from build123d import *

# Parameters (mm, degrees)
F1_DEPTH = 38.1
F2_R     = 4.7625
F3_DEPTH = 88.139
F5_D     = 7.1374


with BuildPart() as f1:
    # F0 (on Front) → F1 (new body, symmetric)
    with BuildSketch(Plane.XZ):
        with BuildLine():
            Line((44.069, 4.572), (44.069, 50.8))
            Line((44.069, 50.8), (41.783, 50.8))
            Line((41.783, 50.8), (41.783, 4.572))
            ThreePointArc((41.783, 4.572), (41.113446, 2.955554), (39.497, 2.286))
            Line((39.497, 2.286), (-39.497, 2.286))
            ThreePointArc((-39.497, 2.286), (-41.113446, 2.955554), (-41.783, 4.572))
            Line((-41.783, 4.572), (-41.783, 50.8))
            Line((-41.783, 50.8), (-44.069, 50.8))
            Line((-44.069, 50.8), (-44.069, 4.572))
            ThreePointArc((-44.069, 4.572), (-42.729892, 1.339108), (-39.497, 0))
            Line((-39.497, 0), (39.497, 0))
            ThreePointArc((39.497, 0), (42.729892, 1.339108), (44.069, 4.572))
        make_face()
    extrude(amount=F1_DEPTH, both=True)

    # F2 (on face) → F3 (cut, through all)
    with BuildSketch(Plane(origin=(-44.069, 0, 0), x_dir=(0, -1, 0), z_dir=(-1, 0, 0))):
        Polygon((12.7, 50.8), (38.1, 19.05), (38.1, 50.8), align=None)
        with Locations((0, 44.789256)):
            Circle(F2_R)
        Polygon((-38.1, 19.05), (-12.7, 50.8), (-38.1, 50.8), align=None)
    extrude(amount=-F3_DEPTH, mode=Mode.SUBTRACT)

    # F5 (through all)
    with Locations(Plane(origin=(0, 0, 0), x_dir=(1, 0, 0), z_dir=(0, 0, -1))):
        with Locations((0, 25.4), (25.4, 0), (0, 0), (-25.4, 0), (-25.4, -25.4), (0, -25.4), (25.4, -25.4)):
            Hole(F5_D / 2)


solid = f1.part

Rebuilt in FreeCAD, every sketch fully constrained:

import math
import FreeCAD as App
import Part
import Sketcher
from FreeCAD import Vector
Q = App.Units.Quantity

doc = App.newDocument("Part")
params = doc.addObject("Spreadsheet::Sheet", "Params")
for row, (alias, value) in enumerate([
    ("sketch1_radius", "0.09 in"),
    ("sketch1_radius2", "0.18 in"),
    ("sketch1_width", "3.11 in"),
    ("pad1_length", "3 in"),
    ("sketch2_width", "1 in"),
    ("sketch2_diameter", "0.375 in"),
    ("sketch2_height", "1.25 in"),
    ("sketch3_diameter", "0.281 in"),
    ("hole_diameter", "0.281 in"),
], start=1):
    params.set(f"A{row}", alias)
    params.set(f"B{row}", "=" + value)
    params.setAlias(f"B{row}", alias)

body = doc.addObject("PartDesign::Body", "Body")

# Sketch on XZ plane
sketch1 = doc.addObject("Sketcher::SketchObject", "Sketch")
body.addObject(sketch1)
sketch1.AttachmentSupport = (doc.XZ_Plane, [""])
sketch1.MapMode = "FlatFace"
sketch1.addGeometry(Part.LineSegment(Vector(44.069, 4.572, 0), Vector(44.069, 50.8, 0)), False)
sketch1.addGeometry(Part.LineSegment(Vector(44.069, 50.8, 0), Vector(41.783, 50.8, 0)), False)
sketch1.addGeometry(Part.LineSegment(Vector(41.783, 50.8, 0), Vector(41.783, 4.572, 0)), False)
sketch1.addGeometry(Part.ArcOfCircle(Part.Circle(Vector(39.497, 4.572, 0), Vector(0, 0, 1), 2.286), math.radians(-89.999991), math.radians(-0.000009)), False)
sketch1.addGeometry(Part.LineSegment(Vector(39.497, 2.286, 0), Vector(-39.497, 2.286, 0)), False)
sketch1.addGeometry(Part.ArcOfCircle(Part.Circle(Vector(-39.497, 4.572, 0), Vector(0, 0, 1), 2.286), math.radians(-179.999991), math.radians(-90.000009)), False)
sketch1.addGeometry(Part.LineSegment(Vector(-41.783, 4.572, 0), Vector(-41.783, 50.8, 0)), False)
sketch1.addGeometry(Part.LineSegment(Vector(-41.783, 50.8, 0), Vector(-44.069, 50.8, 0)), False)
sketch1.addGeometry(Part.LineSegment(Vector(-44.069, 50.8, 0), Vector(-44.069, 4.572, 0)), False)
sketch1.addGeometry(Part.ArcOfCircle(Part.Circle(Vector(-39.496999, 4.572001, 0), Vector(0, 0, 1), 4.572001), math.radians(-179.999991), math.radians(-90.000009)), False)
sketch1.addGeometry(Part.LineSegment(Vector(-39.497, 0, 0), Vector(39.497, 0, 0)), False)
sketch1.addGeometry(Part.ArcOfCircle(Part.Circle(Vector(39.496999, 4.572001, 0), Vector(0, 0, 1), 4.572001), math.radians(-89.999991), math.radians(-0.000009)), False)
sketch1.addConstraint(Sketcher.Constraint("Coincident", 0, 2, 1, 1))
sketch1.addConstraint(Sketcher.Constraint("Coincident", 1, 2, 2, 1))
sketch1.addConstraint(Sketcher.Constraint("Tangent", 2, 2, 3, 2))
sketch1.addConstraint(Sketcher.Constraint("Tangent", 3, 1, 4, 1))
sketch1.addConstraint(Sketcher.Constraint("Tangent", 4, 2, 5, 2))
sketch1.addConstraint(Sketcher.Constraint("Tangent", 5, 1, 6, 1))
sketch1.addConstraint(Sketcher.Constraint("Coincident", 6, 2, 7, 1))
sketch1.addConstraint(Sketcher.Constraint("Coincident", 7, 2, 8, 1))
sketch1.addConstraint(Sketcher.Constraint("Tangent", 8, 2, 9, 1))
sketch1.addConstraint(Sketcher.Constraint("Tangent", 9, 2, 10, 1))
sketch1.addConstraint(Sketcher.Constraint("Tangent", 10, 2, 11, 1))
sketch1.addConstraint(Sketcher.Constraint("Tangent", 11, 2, 0, 1))
sketch1.addConstraint(Sketcher.Constraint("Vertical", 0))
sketch1.addConstraint(Sketcher.Constraint("Horizontal", 1))
sketch1.addConstraint(Sketcher.Constraint("Vertical", 2))
sketch1.addConstraint(Sketcher.Constraint("Horizontal", 4))
sketch1.addConstraint(Sketcher.Constraint("Vertical", 6))
sketch1.addConstraint(Sketcher.Constraint("Horizontal", 7))
sketch1.addConstraint(Sketcher.Constraint("Vertical", 8))
sketch1.addConstraint(Sketcher.Constraint("Horizontal", 10))
sketch1.addConstraint(Sketcher.Constraint("Coincident", 9, 3, 5, 3))
sketch1.addConstraint(Sketcher.Constraint("Coincident", 11, 3, 3, 3))
sketch1.addConstraint(Sketcher.Constraint("Equal", 3, 5))
sketch1.addConstraint(Sketcher.Constraint("Symmetric", 9, 2, 10, 2, -1, 1))
sketch1.addConstraint(Sketcher.Constraint("Horizontal", 1, 2, 6, 2))
sketch1.addConstraint(Sketcher.Constraint("Radius", 3, Q("0.09 in")))
sketch1.addConstraint(Sketcher.Constraint("Radius", 9, Q("0.18 in")))
sketch1.addConstraint(Sketcher.Constraint("DistanceY", -1, 1, 0, 2, Q("2 in")))
sketch1.addConstraint(Sketcher.Constraint("DistanceX", 4, 2, 4, 1, Q("3.11 in")))
sketch1.setExpression("Constraints[25]", "Params.sketch1_radius")
sketch1.setExpression("Constraints[26]", "Params.sketch1_radius2")
sketch1.setExpression("Constraints[28]", "Params.sketch1_width")
pad1 = doc.addObject("PartDesign::Pad", "Pad")
body.addObject(pad1)
pad1.Profile = sketch1
pad1.setExpression("Length", "Params.pad1_length")
pad1.Midplane = True

# Sketch on YZ plane
sketch2 = doc.addObject("Sketcher::SketchObject", "Sketch001")
body.addObject(sketch2)
sketch2.AttachmentSupport = (doc.YZ_Plane, [""])
sketch2.MapMode = "FlatFace"
sketch2.AttachmentOffset = App.Placement(Vector(0, 0, -1.735 * 25.4), App.Rotation())
sketch2.addGeometry(Part.LineSegment(Vector(-12.7, 50.8, 0), Vector(-38.1, 19.05, 0)), False)
sketch2.addGeometry(Part.LineSegment(Vector(-38.1, 19.05, 0), Vector(-38.1, 50.8, 0)), False)
sketch2.addGeometry(Part.LineSegment(Vector(-38.1, 50.8, 0), Vector(-12.7, 50.8, 0)), False)
sketch2.addGeometry(Part.Circle(Vector(0, 44.789256, 0), Vector(0, 0, 1), 4.7625), False)
sketch2.addGeometry(Part.LineSegment(Vector(38.1, 19.05, 0), Vector(12.7, 50.8, 0)), False)
sketch2.addGeometry(Part.LineSegment(Vector(12.7, 50.8, 0), Vector(38.1, 50.8, 0)), False)
sketch2.addGeometry(Part.LineSegment(Vector(38.1, 50.8, 0), Vector(38.1, 19.05, 0)), False)
sketch2.addConstraint(Sketcher.Constraint("Coincident", 0, 2, 1, 1))
sketch2.addConstraint(Sketcher.Constraint("Coincident", 1, 2, 2, 1))
sketch2.addConstraint(Sketcher.Constraint("Coincident", 2, 2, 0, 1))
sketch2.addConstraint(Sketcher.Constraint("Coincident", 4, 2, 5, 1))
sketch2.addConstraint(Sketcher.Constraint("Coincident", 5, 2, 6, 1))
sketch2.addConstraint(Sketcher.Constraint("Coincident", 6, 2, 4, 1))
sketch2.addConstraint(Sketcher.Constraint("Vertical", 1))
sketch2.addConstraint(Sketcher.Constraint("Horizontal", 2))
sketch2.addConstraint(Sketcher.Constraint("Horizontal", 5))
sketch2.addConstraint(Sketcher.Constraint("Vertical", 6))
sketch2.addConstraint(Sketcher.Constraint("Symmetric", 2, 2, 4, 2, -2))
sketch2.addConstraint(Sketcher.Constraint("Symmetric", 0, 2, 6, 2, -2))
sketch2.addConstraint(Sketcher.Constraint("PointOnObject", 3, 3, -2))
sketch2.addConstraint(Sketcher.Constraint("DistanceX", 2, 1, 2, 2, Q("1 in")))
sketch2.addConstraint(Sketcher.Constraint("Diameter", 3, Q("0.375 in")))
sketch2.addConstraint(Sketcher.Constraint("DistanceY", -1, 1, 1, 2, Q("2 in")))
sketch2.addConstraint(Sketcher.Constraint("DistanceX", 2, 2, 4, 2, Q("1 in")))
sketch2.addConstraint(Sketcher.Constraint("DistanceY", 1, 1, 1, 2, Q("1.25 in")))
sketch2.addConstraint(Sketcher.Constraint("DistanceY", -1, 1, 3, 3, 44.789256))
sketch2.setExpression("Constraints[13]", "Params.sketch2_width")
sketch2.setExpression("Constraints[14]", "Params.sketch2_diameter")
sketch2.setExpression("Constraints[17]", "Params.sketch2_height")
pocket1 = doc.addObject("PartDesign::Pocket", "Pocket")
body.addObject(pocket1)
pocket1.Profile = sketch2
pocket1.Type = "ThroughAll"
pocket1.Reversed = True

# Sketch on XY plane
sketch3 = doc.addObject("Sketcher::SketchObject", "Sketch002")
body.addObject(sketch3)
sketch3.AttachmentSupport = (doc.XY_Plane, [""])
sketch3.MapMode = "FlatFace"
sketch3.addGeometry(Part.Circle(Vector(0, -25.4, 0), Vector(0, 0, 1), 3.5687), False)
sketch3.addGeometry(Part.Circle(Vector(25.4, 0, 0), Vector(0, 0, 1), 3.5687), False)
sketch3.addGeometry(Part.Circle(Vector(0, 0, 0), Vector(0, 0, 1), 3.5687), False)
sketch3.addGeometry(Part.Circle(Vector(-25.4, 0, 0), Vector(0, 0, 1), 3.5687), False)
sketch3.addGeometry(Part.Circle(Vector(-25.4, 25.4, 0), Vector(0, 0, 1), 3.5687), False)
sketch3.addGeometry(Part.Circle(Vector(0, 25.4, 0), Vector(0, 0, 1), 3.5687), False)
sketch3.addGeometry(Part.Circle(Vector(25.4, 25.4, 0), Vector(0, 0, 1), 3.5687), False)
sketch3.addConstraint(Sketcher.Constraint("Coincident", 2, 3, -1, 1))
sketch3.addConstraint(Sketcher.Constraint("Equal", 0, 1))
sketch3.addConstraint(Sketcher.Constraint("Equal", 1, 2))
sketch3.addConstraint(Sketcher.Constraint("Equal", 2, 3))
sketch3.addConstraint(Sketcher.Constraint("Equal", 3, 4))
sketch3.addConstraint(Sketcher.Constraint("Equal", 4, 5))
sketch3.addConstraint(Sketcher.Constraint("Equal", 5, 6))
sketch3.addConstraint(Sketcher.Constraint("Symmetric", 1, 3, 3, 3, -1, 1))
sketch3.addConstraint(Sketcher.Constraint("Symmetric", 0, 3, 5, 3, -1, 1))
sketch3.addConstraint(Sketcher.Constraint("Symmetric", 4, 3, 6, 3, -2))
sketch3.addConstraint(Sketcher.Constraint("PointOnObject", 0, 3, -2))
sketch3.addConstraint(Sketcher.Constraint("PointOnObject", 1, 3, -1))
sketch3.addConstraint(Sketcher.Constraint("Horizontal", 4, 3, 5, 3))
sketch3.addConstraint(Sketcher.Constraint("Vertical", 3, 3, 4, 3))
sketch3.addConstraint(Sketcher.Constraint("Diameter", 0, Q("0.281 in")))
sketch3.addConstraint(Sketcher.Constraint("DistanceY", 0, 3, -1, 1, Q("1 in")))
sketch3.addConstraint(Sketcher.Constraint("DistanceX", -1, 1, 1, 3, Q("1 in")))
sketch3.setExpression("Constraints[14]", "Params.sketch3_diameter")
doc.recompute()
hole = doc.addObject("PartDesign::Hole", "Hole")
body.addObject(hole)
hole.Profile = sketch3
hole.ThreadType = "None"
hole.setExpression("Diameter", "Params.hole_diameter")
hole.DepthType = "ThroughAll"
hole.Reversed = True

doc.recompute()
